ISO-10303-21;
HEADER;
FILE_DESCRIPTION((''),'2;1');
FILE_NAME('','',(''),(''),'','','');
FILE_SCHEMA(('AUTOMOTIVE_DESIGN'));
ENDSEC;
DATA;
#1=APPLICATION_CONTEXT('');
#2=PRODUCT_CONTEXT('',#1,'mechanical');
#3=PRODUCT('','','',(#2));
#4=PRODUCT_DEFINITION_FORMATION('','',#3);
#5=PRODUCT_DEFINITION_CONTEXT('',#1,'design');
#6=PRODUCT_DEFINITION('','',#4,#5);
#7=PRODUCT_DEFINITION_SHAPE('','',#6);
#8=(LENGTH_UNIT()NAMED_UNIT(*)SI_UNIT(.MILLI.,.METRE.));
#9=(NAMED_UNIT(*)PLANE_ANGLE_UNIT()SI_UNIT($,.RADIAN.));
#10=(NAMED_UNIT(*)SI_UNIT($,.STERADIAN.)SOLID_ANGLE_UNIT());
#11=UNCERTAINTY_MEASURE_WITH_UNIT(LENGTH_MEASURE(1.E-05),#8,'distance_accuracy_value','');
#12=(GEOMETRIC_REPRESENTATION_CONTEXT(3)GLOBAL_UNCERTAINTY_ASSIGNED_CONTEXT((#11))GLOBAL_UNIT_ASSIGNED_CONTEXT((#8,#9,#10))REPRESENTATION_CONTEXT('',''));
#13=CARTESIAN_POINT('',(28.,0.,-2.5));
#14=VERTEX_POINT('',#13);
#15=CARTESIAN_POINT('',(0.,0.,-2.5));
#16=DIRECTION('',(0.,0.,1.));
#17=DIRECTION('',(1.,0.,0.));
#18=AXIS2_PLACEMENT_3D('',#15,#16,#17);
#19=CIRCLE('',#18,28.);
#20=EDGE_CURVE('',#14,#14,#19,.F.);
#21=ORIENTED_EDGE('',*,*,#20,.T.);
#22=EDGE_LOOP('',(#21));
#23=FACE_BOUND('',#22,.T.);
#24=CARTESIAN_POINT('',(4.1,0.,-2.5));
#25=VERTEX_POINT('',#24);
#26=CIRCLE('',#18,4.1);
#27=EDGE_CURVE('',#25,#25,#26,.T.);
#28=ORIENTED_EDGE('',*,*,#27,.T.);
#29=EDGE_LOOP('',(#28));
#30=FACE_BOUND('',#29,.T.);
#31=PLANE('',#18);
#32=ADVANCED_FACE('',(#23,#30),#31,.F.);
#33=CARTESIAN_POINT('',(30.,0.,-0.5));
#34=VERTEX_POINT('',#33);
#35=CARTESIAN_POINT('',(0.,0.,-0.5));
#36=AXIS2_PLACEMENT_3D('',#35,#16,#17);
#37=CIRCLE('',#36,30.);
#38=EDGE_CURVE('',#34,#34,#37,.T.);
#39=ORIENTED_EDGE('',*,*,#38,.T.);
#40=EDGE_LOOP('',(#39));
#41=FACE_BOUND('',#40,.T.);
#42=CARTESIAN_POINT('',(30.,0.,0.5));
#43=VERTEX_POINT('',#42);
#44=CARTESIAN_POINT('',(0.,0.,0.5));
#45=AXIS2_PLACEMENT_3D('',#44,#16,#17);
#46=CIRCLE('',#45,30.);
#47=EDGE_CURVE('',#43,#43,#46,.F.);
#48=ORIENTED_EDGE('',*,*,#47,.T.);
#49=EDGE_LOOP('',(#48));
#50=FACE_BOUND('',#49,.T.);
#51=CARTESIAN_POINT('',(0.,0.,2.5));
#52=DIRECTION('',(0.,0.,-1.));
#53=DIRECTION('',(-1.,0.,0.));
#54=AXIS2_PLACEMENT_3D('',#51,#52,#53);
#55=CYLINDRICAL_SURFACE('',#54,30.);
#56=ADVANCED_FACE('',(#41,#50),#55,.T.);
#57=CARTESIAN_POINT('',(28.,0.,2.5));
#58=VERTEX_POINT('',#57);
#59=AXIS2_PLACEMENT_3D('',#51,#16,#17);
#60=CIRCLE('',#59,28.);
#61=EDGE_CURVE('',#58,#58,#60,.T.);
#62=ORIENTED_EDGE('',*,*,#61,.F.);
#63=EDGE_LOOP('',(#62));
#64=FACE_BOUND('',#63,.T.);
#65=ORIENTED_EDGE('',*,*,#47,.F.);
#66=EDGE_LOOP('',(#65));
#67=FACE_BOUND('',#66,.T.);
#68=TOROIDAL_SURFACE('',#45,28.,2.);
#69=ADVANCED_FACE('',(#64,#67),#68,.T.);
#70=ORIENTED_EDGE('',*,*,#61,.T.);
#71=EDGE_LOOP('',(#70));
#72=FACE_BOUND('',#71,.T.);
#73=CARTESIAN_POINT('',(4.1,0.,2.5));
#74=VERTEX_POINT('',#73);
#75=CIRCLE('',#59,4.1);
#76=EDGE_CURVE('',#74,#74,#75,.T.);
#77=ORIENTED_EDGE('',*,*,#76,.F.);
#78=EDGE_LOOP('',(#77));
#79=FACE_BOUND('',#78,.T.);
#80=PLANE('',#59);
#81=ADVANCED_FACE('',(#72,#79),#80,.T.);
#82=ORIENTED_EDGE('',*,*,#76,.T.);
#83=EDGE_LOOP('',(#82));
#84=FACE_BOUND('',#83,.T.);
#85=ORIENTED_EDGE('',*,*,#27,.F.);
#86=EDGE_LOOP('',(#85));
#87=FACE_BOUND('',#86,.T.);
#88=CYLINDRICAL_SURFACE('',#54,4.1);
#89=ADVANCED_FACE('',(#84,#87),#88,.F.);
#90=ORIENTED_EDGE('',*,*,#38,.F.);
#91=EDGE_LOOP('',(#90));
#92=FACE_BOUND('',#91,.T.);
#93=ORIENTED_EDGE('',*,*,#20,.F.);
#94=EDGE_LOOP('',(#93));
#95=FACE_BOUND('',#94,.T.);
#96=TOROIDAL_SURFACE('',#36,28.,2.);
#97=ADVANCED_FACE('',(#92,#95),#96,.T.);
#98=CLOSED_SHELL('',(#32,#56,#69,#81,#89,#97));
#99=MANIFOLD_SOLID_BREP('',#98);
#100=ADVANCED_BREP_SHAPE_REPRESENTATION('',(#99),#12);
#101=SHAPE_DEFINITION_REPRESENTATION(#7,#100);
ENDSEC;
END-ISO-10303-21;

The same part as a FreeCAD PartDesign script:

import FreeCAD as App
import Part
import Sketcher

V = App.Vector


def edges_at(feature, points):
    """Names of the edges that pass closest to the given points."""
    edges = feature.Shape.Edges
    near = lambda p: min(range(len(edges)), key=lambda i: edges[i].distToShape(Part.Vertex(*p))[0])
    return sorted({f"Edge{near(p) + 1}" for p in points})

doc = App.newDocument("Part")
params = doc.addObject("Spreadsheet::Sheet", "Params")
for row, (alias, value) in enumerate([
    ("sketch1_diameter", "60 mm"),
    ("sketch1_diameter2", "8.2 mm"),
    ("pad1_length", "5 mm"),
    ("fillet_radius", "2 mm"),
], start=1):
    params.set(f"A{row}", alias)
    params.set(f"B{row}", "=" + value)
    params.setAlias(f"B{row}", alias)

body = doc.addObject("PartDesign::Body", "Body")

sketch1 = body.newObject("Sketcher::SketchObject", "Sketch")
sketch1.AttachmentSupport = (doc.getObject("XY_Plane"), [""])
sketch1.MapMode = "FlatFace"
sketch1.addGeometry([
    Part.Circle(V(0, 0, 0), V(0, 0, 1), 30),
    Part.Circle(V(0, 0, 0), V(0, 0, 1), 4.1),
], False)
sketch1.addConstraint([
    Sketcher.Constraint("Coincident", 0, 3, -1, 1),
    Sketcher.Constraint("Coincident", 1, 3, -1, 1),
    Sketcher.Constraint("Diameter", 0, 60.0),
    Sketcher.Constraint("Diameter", 1, 8.2),
])
sketch1.setExpression("Constraints[2]", "Params.sketch1_diameter")
sketch1.setExpression("Constraints[3]", "Params.sketch1_diameter2")
pad1 = body.newObject("PartDesign::Pad", "Pad")
pad1.Profile = sketch1
pad1.setExpression("Length", "Params.pad1_length")
pad1.Midplane = True
doc.recompute()

fillet = body.newObject("PartDesign::Fillet", "Fillet")
fillet.Base = (pad1, edges_at(pad1, [(-30, 0, -2.5), (-30, 0, 2.5)]))
fillet.setExpression("Radius", "Params.fillet_radius")

doc.recompute()
